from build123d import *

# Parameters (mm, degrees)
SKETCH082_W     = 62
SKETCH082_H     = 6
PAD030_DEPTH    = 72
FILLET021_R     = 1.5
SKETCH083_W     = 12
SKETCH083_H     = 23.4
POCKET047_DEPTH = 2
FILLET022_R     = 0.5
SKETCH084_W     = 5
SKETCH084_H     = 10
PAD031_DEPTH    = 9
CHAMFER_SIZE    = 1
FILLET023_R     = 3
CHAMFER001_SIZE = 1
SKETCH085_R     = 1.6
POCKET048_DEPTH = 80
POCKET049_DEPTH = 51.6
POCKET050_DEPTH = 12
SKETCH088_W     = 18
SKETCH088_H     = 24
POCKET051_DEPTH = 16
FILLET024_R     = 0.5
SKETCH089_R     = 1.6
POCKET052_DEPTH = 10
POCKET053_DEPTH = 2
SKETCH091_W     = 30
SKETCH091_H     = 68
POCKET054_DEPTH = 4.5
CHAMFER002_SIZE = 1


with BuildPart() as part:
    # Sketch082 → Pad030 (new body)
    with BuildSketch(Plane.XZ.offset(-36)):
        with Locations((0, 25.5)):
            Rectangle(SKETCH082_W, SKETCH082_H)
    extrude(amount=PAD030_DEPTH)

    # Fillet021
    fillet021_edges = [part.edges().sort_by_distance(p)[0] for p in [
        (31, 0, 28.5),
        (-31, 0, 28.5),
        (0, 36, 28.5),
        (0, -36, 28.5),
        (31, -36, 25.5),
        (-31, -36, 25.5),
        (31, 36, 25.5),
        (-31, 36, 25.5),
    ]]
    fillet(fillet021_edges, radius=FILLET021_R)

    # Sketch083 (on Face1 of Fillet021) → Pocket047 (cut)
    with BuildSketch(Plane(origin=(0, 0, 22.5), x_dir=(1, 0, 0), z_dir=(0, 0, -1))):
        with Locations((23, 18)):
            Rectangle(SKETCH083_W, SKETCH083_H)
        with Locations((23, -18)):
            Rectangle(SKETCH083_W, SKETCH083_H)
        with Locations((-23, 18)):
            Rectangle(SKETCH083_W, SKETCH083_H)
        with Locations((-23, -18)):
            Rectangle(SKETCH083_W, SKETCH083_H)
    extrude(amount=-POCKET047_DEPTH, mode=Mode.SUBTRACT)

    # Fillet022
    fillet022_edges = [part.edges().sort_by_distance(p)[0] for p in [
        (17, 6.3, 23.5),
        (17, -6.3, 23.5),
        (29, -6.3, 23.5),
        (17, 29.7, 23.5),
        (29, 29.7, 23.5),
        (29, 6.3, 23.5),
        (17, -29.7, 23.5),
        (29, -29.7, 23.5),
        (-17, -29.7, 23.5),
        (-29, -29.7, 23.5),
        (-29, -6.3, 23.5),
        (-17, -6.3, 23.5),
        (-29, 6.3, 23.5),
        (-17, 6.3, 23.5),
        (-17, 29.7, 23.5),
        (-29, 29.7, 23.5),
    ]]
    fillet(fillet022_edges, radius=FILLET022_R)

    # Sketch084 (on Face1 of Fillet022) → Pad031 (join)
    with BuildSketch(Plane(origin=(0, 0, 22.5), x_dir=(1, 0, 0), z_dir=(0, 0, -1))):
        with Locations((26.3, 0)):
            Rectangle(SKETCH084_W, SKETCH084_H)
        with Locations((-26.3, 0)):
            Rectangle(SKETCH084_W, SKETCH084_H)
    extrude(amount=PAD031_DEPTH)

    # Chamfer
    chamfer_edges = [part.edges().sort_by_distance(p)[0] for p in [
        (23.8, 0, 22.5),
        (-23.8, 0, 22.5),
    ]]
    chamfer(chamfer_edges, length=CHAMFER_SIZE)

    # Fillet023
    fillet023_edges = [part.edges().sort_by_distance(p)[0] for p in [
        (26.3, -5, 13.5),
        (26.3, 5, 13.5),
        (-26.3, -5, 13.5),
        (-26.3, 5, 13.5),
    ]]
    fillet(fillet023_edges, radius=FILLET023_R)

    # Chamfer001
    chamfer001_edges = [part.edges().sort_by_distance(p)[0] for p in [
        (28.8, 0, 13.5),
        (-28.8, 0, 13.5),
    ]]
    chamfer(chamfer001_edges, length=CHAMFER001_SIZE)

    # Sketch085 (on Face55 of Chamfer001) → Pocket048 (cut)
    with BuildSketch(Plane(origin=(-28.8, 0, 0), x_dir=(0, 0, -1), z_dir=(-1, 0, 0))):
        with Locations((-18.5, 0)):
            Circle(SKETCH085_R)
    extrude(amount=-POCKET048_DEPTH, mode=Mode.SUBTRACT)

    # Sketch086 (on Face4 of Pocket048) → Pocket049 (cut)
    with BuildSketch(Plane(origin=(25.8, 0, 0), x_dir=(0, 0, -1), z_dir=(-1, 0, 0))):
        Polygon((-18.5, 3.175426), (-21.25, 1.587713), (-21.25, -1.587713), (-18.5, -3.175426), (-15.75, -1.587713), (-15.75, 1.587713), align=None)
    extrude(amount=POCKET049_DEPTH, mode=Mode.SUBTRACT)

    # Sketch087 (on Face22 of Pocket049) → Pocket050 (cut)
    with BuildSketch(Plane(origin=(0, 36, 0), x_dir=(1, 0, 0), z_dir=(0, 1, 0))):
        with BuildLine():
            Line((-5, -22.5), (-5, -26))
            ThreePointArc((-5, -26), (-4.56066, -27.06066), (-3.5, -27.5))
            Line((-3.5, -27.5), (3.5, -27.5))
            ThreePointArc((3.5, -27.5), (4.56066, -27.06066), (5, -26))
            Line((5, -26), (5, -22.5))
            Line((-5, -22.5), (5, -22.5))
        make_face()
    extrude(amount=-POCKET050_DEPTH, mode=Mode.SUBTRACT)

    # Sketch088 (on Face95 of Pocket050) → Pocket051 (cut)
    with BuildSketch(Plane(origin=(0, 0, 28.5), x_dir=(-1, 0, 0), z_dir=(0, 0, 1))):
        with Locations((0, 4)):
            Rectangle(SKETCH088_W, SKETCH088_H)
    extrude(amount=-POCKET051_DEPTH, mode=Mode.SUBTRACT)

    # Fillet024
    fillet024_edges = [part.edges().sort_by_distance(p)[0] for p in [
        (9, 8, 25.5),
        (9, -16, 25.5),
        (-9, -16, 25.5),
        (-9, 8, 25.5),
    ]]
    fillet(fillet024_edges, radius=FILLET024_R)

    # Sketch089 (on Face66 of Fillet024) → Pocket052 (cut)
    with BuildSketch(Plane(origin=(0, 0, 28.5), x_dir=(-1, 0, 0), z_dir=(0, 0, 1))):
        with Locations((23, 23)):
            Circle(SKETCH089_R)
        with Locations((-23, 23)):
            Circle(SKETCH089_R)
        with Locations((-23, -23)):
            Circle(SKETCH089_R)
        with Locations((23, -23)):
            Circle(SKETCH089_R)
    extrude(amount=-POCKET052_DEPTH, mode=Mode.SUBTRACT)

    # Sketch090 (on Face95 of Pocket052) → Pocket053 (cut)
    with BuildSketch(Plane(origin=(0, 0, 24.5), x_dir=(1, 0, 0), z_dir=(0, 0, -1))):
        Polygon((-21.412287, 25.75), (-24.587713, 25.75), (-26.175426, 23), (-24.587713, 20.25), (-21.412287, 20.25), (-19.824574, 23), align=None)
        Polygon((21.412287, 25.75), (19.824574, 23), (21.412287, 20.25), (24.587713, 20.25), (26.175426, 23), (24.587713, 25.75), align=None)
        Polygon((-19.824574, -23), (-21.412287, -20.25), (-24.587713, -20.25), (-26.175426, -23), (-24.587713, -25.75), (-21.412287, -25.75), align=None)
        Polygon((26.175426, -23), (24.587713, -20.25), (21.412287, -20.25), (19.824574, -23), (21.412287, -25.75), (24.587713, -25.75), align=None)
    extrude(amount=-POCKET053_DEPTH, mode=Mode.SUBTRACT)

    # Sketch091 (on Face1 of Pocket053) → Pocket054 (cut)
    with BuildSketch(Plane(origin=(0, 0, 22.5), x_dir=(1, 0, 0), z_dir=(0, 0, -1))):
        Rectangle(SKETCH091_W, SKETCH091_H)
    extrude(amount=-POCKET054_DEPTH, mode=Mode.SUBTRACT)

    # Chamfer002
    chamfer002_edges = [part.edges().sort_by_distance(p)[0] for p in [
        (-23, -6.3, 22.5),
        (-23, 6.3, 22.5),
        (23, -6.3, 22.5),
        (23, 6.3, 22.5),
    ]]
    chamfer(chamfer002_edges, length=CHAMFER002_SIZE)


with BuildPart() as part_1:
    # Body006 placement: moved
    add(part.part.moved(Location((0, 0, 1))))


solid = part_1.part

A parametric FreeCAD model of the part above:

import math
import FreeCAD as App
import Part
import Sketcher
Q = App.Units.Quantity


def edges_at(feature, points):
    """Names of the edges that pass closest to the given points."""
    edges = feature.Shape.Edges
    near = lambda p: min(range(len(edges)), key=lambda i: edges[i].distToShape(Part.Vertex(*p))[0])
    return sorted({f"Edge{near(p) + 1}" for p in points})

doc = App.newDocument("Part")
body = doc.addObject("PartDesign::Body", "Body")

# Sketch on XZ plane
sketch1 = doc.addObject("Sketcher::SketchObject", "Sketch")
body.addObject(sketch1)
sketch1.AttachmentSupport = (doc.XZ_Plane, [""])
sketch1.MapMode = "FlatFace"
sketch1.AttachmentOffset = App.Placement(App.Vector(0, 0, -36), App.Rotation())
sketch1.addGeometry(Part.LineSegment(App.Vector(-31, 28, 0), App.Vector(-31, 22, 0)), False)
sketch1.addGeometry(Part.LineSegment(App.Vector(-31, 22, 0), App.Vector(31, 22, 0)), False)
sketch1.addGeometry(Part.LineSegment(App.Vector(31, 22, 0), App.Vector(31, 28, 0)), False)
sketch1.addGeometry(Part.LineSegment(App.Vector(31, 28, 0), App.Vector(-31, 28, 0)), False)
sketch1.addConstraint(Sketcher.Constraint("Coincident", 0, 2, 1, 1))
sketch1.addConstraint(Sketcher.Constraint("Coincident", 1, 2, 2, 1))
sketch1.addConstraint(Sketcher.Constraint("Coincident", 2, 2, 3, 1))
sketch1.addConstraint(Sketcher.Constraint("Coincident", 3, 2, 0, 1))
sketch1.addConstraint(Sketcher.Constraint("Vertical", 0))
sketch1.addConstraint(Sketcher.Constraint("Horizontal", 1))
sketch1.addConstraint(Sketcher.Constraint("Vertical", 2))
sketch1.addConstraint(Sketcher.Constraint("Horizontal", 3))
sketch1.addConstraint(Sketcher.Constraint("DistanceX", 1, 1, 1, 2, 62.0))
sketch1.addConstraint(Sketcher.Constraint("DistanceY", 0, 2, 0, 1, 6.0))
sketch1.addConstraint(Sketcher.Constraint("DistanceX", 0, 2, -1, 1, 31.0))
sketch1.addConstraint(Sketcher.Constraint("DistanceY", -1, 1, 0, 2, 22.5))
pad1 = doc.addObject("PartDesign::Pad", "Pad")
body.addObject(pad1)
pad1.Profile = sketch1
pad1.Length = 72
doc.recompute()

fillet = doc.addObject("PartDesign::Fillet", "Fillet")
body.addObject(fillet)
fillet.Base = (pad1, edges_at(pad1, [
    (31, 0, 28.5),
    (-31, 0, 28.5),
    (0, 36, 28.5),
    (0, -36, 28.5),
    (31, -36, 25.5),
    (-31, -36, 25.5),
    (31, 36, 25.5),
    (-31, 36, 25.5),
]))
fillet.Radius = 1.5

# Sketch on XY plane
sketch2 = doc.addObject("Sketcher::SketchObject", "Sketch001")
body.addObject(sketch2)
sketch2.AttachmentSupport = (doc.XY_Plane, [""])
sketch2.MapMode = "FlatFace"
sketch2.AttachmentOffset = App.Placement(App.Vector(0, 0, 22.5), App.Rotation())
sketch2.addGeometry(Part.LineSegment(App.Vector(17, -30, 0), App.Vector(17, -6, 0)), False)
sketch2.addGeometry(Part.LineSegment(App.Vector(17, -6, 0), App.Vector(29, -6, 0)), False)
sketch2.addGeometry(Part.LineSegment(App.Vector(29, -6, 0), App.Vector(29, -30, 0)), False)
sketch2.addGeometry(Part.LineSegment(App.Vector(29, -30, 0), App.Vector(17, -30, 0)), False)
sketch2.addGeometry(Part.LineSegment(App.Vector(17, 6, 0), App.Vector(17, 30, 0)), False)
sketch2.addGeometry(Part.LineSegment(App.Vector(17, 30, 0), App.Vector(29, 30, 0)), False)
sketch2.addGeometry(Part.LineSegment(App.Vector(29, 30, 0), App.Vector(29, 6, 0)), False)
sketch2.addGeometry(Part.LineSegment(App.Vector(29, 6, 0), App.Vector(17, 6, 0)), False)
sketch2.addGeometry(Part.LineSegment(App.Vector(-29, -30, 0), App.Vector(-29, -6, 0)), False)
sketch2.addGeometry(Part.LineSegment(App.Vector(-29, -6, 0), App.Vector(-17, -6, 0)), False)
sketch2.addGeometry(Part.LineSegment(App.Vector(-17, -6, 0), App.Vector(-17, -30, 0)), False)
sketch2.addGeometry(Part.LineSegment(App.Vector(-17, -30, 0), App.Vector(-29, -30, 0)), False)
sketch2.addGeometry(Part.LineSegment(App.Vector(-29, 6, 0), App.Vector(-29, 30, 0)), False)
sketch2.addGeometry(Part.LineSegment(App.Vector(-29, 30, 0), App.Vector(-17, 30, 0)), False)
sketch2.addGeometry(Part.LineSegment(App.Vector(-17, 30, 0), App.Vector(-17, 6, 0)), False)
sketch2.addGeometry(Part.LineSegment(App.Vector(-17, 6, 0), App.Vector(-29, 6, 0)), False)
sketch2.addConstraint(Sketcher.Constraint("Coincident", 0, 2, 1, 1))
sketch2.addConstraint(Sketcher.Constraint("Coincident", 1, 2, 2, 1))
sketch2.addConstraint(Sketcher.Constraint("Coincident", 2, 2, 3, 1))
sketch2.addConstraint(Sketcher.Constraint("Coincident", 3, 2, 0, 1))
sketch2.addConstraint(Sketcher.Constraint("Coincident", 4, 2, 5, 1))
sketch2.addConstraint(Sketcher.Constraint("Coincident", 5, 2, 6, 1))
sketch2.addConstraint(Sketcher.Constraint("Coincident", 6, 2, 7, 1))
sketch2.addConstraint(Sketcher.Constraint("Coincident", 7, 2, 4, 1))
sketch2.addConstraint(Sketcher.Constraint("Coincident", 8, 2, 9, 1))
sketch2.addConstraint(Sketcher.Constraint("Coincident", 9, 2, 10, 1))
sketch2.addConstraint(Sketcher.Constraint("Coincident", 10, 2, 11, 1))
sketch2.addConstraint(Sketcher.Constraint("Coincident", 11, 2, 8, 1))
sketch2.addConstraint(Sketcher.Constraint("Coincident", 12, 2, 13, 1))
sketch2.addConstraint(Sketcher.Constraint("Coincident", 13, 2, 14, 1))
sketch2.addConstraint(Sketcher.Constraint("Coincident", 14, 2, 15, 1))
sketch2.addConstraint(Sketcher.Constraint("Coincident", 15, 2, 12, 1))
sketch2.addConstraint(Sketcher.Constraint("Vertical", 0))
sketch2.addConstraint(Sketcher.Constraint("Horizontal", 1))
sketch2.addConstraint(Sketcher.Constraint("Vertical", 2))
sketch2.addConstraint(Sketcher.Constraint("Horizontal", 3))
sketch2.addConstraint(Sketcher.Constraint("Vertical", 4))
sketch2.addConstraint(Sketcher.Constraint("Horizontal", 5))
sketch2.addConstraint(Sketcher.Constraint("Vertical", 6))
sketch2.addConstraint(Sketcher.Constraint("Horizontal", 7))
sketch2.addConstraint(Sketcher.Constraint("Vertical", 8))
sketch2.addConstraint(Sketcher.Constraint("Horizontal", 9))
sketch2.addConstraint(Sketcher.Constraint("Vertical", 10))
sketch2.addConstraint(Sketcher.Constraint("Horizontal", 11))
sketch2.addConstraint(Sketcher.Constraint("Vertical", 12))
sketch2.addConstraint(Sketcher.Constraint("Horizontal", 13))
sketch2.addConstraint(Sketcher.Constraint("Vertical", 14))
sketch2.addConstraint(Sketcher.Constraint("Horizontal", 15))
sketch2.addConstraint(Sketcher.Constraint("Symmetric", 6, 2, 8, 2, -1, 1))
sketch2.addConstraint(Sketcher.Constraint("Symmetric", 4, 2, 10, 2, -1, 1))
sketch2.addConstraint(Sketcher.Constraint("Symmetric", 2, 2, 12, 2, -1, 1))
sketch2.addConstraint(Sketcher.Constraint("Symmetric", 0, 2, 14, 2, -1, 1))
sketch2.addConstraint(Sketcher.Constraint("Symmetric", 1, 2, 8, 2, -2))
sketch2.addConstraint(Sketcher.Constraint("Symmetric", 3, 2, 10, 2, -2))
sketch2.addConstraint(Sketcher.Constraint("DistanceX", 1, 1, 1, 2, 12.0))
sketch2.addConstraint(Sketcher.Constraint("DistanceY", 0, 1, 0, 2, 23.4))
sketch2.addConstraint(Sketcher.Constraint("DistanceX", -1, 1, 0, 2, 17.0))
sketch2.addConstraint(Sketcher.Constraint("DistanceY", 0, 2, 4, 2, 36.0))
pocket1 = doc.addObject("PartDesign::Pocket", "Pocket")
body.addObject(pocket1)
pocket1.Profile = sketch2
pocket1.Length = 2
pocket1.Reversed = True
doc.recompute()

fillet2 = doc.addObject("PartDesign::Fillet", "Fillet001")
body.addObject(fillet2)
fillet2.Base = (pocket1, edges_at(pocket1, [
    (17, 6.3, 23.5),
    (17, -6.3, 23.5),
    (29, -6.3, 23.5),
    (17, 29.7, 23.5),
    (29, 29.7, 23.5),
    (29, 6.3, 23.5),
    (17, -29.7, 23.5),
    (29, -29.7, 23.5),
    (-17, -29.7, 23.5),
    (-29, -29.7, 23.5),
    (-29, -6.3, 23.5),
    (-17, -6.3, 23.5),
    (-29, 6.3, 23.5),
    (-17, 6.3, 23.5),
    (-17, 29.7, 23.5),
    (-29, 29.7, 23.5),
]))
fillet2.Radius = 0.5

# Sketch on XY plane
sketch3 = doc.addObject("Sketcher::SketchObject", "Sketch002")
body.addObject(sketch3)
sketch3.AttachmentSupport = (doc.XY_Plane, [""])
sketch3.MapMode = "FlatFace"
sketch3.AttachmentOffset = App.Placement(App.Vector(0, 0, 22.5), App.Rotation())
sketch3.addGeometry(Part.LineSegment(App.Vector(24, -5, 0), App.Vector(24, 5, 0)), False)
sketch3.addGeometry(Part.LineSegment(App.Vector(24, 5, 0), App.Vector(29, 5, 0)), False)
sketch3.addGeometry(Part.LineSegment(App.Vector(29, 5, 0), App.Vector(29, -5, 0)), False)
sketch3.addGeometry(Part.LineSegment(App.Vector(29, -5, 0), App.Vector(24, -5, 0)), False)
sketch3.addGeometry(Part.LineSegment(App.Vector(-29, -5, 0), App.Vector(-29, 5, 0)), False)
sketch3.addGeometry(Part.LineSegment(App.Vector(-29, 5, 0), App.Vector(-24, 5, 0)), False)
sketch3.addGeometry(Part.LineSegment(App.Vector(-24, 5, 0), App.Vector(-24, -5, 0)), False)
sketch3.addGeometry(Part.LineSegment(App.Vector(-24, -5, 0), App.Vector(-29, -5, 0)), False)
sketch3.addConstraint(Sketcher.Constraint("Coincident", 0, 2, 1, 1))
sketch3.addConstraint(Sketcher.Constraint("Coincident", 1, 2, 2, 1))
sketch3.addConstraint(Sketcher.Constraint("Coincident", 2, 2, 3, 1))
sketch3.addConstraint(Sketcher.Constraint("Coincident", 3, 2, 0, 1))
sketch3.addConstraint(Sketcher.Constraint("Coincident", 4, 2, 5, 1))
sketch3.addConstraint(Sketcher.Constraint("Coincident", 5, 2, 6, 1))
sketch3.addConstraint(Sketcher.Constraint("Coincident", 6, 2, 7, 1))
sketch3.addConstraint(Sketcher.Constraint("Coincident", 7, 2, 4, 1))
sketch3.addConstraint(Sketcher.Constraint("Vertical", 0))
sketch3.addConstraint(Sketcher.Constraint("Horizontal", 1))
sketch3.addConstraint(Sketcher.Constraint("Vertical", 2))
sketch3.addConstraint(Sketcher.Constraint("Horizontal", 3))
sketch3.addConstraint(Sketcher.Constraint("Vertical", 4))
sketch3.addConstraint(Sketcher.Constraint("Horizontal", 5))
sketch3.addConstraint(Sketcher.Constraint("Vertical", 6))
sketch3.addConstraint(Sketcher.Constraint("Horizontal", 7))
sketch3.addConstraint(Sketcher.Constraint("Symmetric", 2, 2, 4, 2, -1, 1))
sketch3.addConstraint(Sketcher.Constraint("Symmetric", 0, 2, 6, 2, -1, 1))
sketch3.addConstraint(Sketcher.Constraint("Horizontal", 1, 2, 4, 2))
sketch3.addConstraint(Sketcher.Constraint("DistanceX", 1, 1, 1, 2, 5.0))
sketch3.addConstraint(Sketcher.Constraint("DistanceY", 0, 1, 0, 2, 10.0))
sketch3.addConstraint(Sketcher.Constraint("DistanceX", -1, 1, 0, 2, 23.8))
pad2 = doc.addObject("PartDesign::Pad", "Pad001")
body.addObject(pad2)
pad2.Profile = sketch3
pad2.Length = 9
pad2.Reversed = True
doc.recompute()

chamfer = doc.addObject("PartDesign::Chamfer", "Chamfer")
body.addObject(chamfer)
chamfer.Base = (pad2, edges_at(pad2, [(23.8, 0, 22.5), (-23.8, 0, 22.5)]))
chamfer.Size = 1
doc.recompute()

fillet3 = doc.addObject("PartDesign::Fillet", "Fillet002")
body.addObject(fillet3)
fillet3.Base = (chamfer, edges_at(chamfer, [
    (26.3, -5, 13.5),
    (26.3, 5, 13.5),
    (-26.3, -5, 13.5),
    (-26.3, 5, 13.5),
]))
fillet3.Radius = 3
doc.recompute()

chamfer2 = doc.addObject("PartDesign::Chamfer", "Chamfer001")
body.addObject(chamfer2)
chamfer2.Base = (fillet3, edges_at(fillet3, [(28.8, 0, 13.5), (-28.8, 0, 13.5)]))
chamfer2.Size = 1

# Sketch on YZ plane
sketch4 = doc.addObject("Sketcher::SketchObject", "Sketch003")
body.addObject(sketch4)
sketch4.AttachmentSupport = (doc.YZ_Plane, [""])
sketch4.MapMode = "FlatFace"
sketch4.AttachmentOffset = App.Placement(App.Vector(0, 0, -28.8), App.Rotation())
sketch4.addGeometry(Part.Circle(App.Vector(0, 18.5, 0), App.Vector(0, 0, 1), 1.6), False)
sketch4.addConstraint(Sketcher.Constraint("PointOnObject", 0, 3, -2))
sketch4.addConstraint(Sketcher.Constraint("Diameter", 0, 3.2))
sketch4.addConstraint(Sketcher.Constraint("DistanceY", -1, 1, 0, 3, 18.5))
pocket2 = doc.addObject("PartDesign::Pocket", "Pocket001")
body.addObject(pocket2)
pocket2.Profile = sketch4
pocket2.Length = 80
pocket2.Reversed = True

# Sketch on YZ plane
sketch5 = doc.addObject("Sketcher::SketchObject", "Sketch004")
body.addObject(sketch5)
sketch5.AttachmentSupport = (doc.YZ_Plane, [""])
sketch5.MapMode = "FlatFace"
sketch5.AttachmentOffset = App.Placement(App.Vector(0, 0, 25.8), App.Rotation())
sketch5.addGeometry(Part.LineSegment(App.Vector(-3.2, 18.5, 0), App.Vector(-1.6, 21.2, 0)), False)
sketch5.addGeometry(Part.LineSegment(App.Vector(-1.6, 21.2, 0), App.Vector(1.6, 21.2, 0)), False)
sketch5.addGeometry(Part.LineSegment(App.Vector(1.6, 21.2, 0), App.Vector(3.2, 18.5, 0)), False)
sketch5.addGeometry(Part.LineSegment(App.Vector(3.2, 18.5, 0), App.Vector(1.6, 15.8, 0)), False)
sketch5.addGeometry(Part.LineSegment(App.Vector(1.6, 15.8, 0), App.Vector(-1.6, 15.8, 0)), False)
sketch5.addGeometry(Part.LineSegment(App.Vector(-1.6, 15.8, 0), App.Vector(-3.2, 18.5, 0)), False)
sketch5.addConstraint(Sketcher.Constraint("Coincident", 0, 2, 1, 1))
sketch5.addConstraint(Sketcher.Constraint("Coincident", 1, 2, 2, 1))
sketch5.addConstraint(Sketcher.Constraint("Coincident", 2, 2, 3, 1))
sketch5.addConstraint(Sketcher.Constraint("Coincident", 3, 2, 4, 1))
sketch5.addConstraint(Sketcher.Constraint("Coincident", 4, 2, 5, 1))
sketch5.addConstraint(Sketcher.Constraint("Coincident", 5, 2, 0, 1))
sketch5.addConstraint(Sketcher.Constraint("Horizontal", 1))
sketch5.addConstraint(Sketcher.Constraint("Horizontal", 4))
sketch5.addConstraint(Sketcher.Constraint("Symmetric", 2, 2, 5, 2, -2))
sketch5.addConstraint(Sketcher.Constraint("Parallel", 0, 3))
sketch5.addConstraint(Sketcher.Constraint("Parallel", 2, 5))
sketch5.addConstraint(Sketcher.Constraint("Vertical", 1, 2, 3, 2))
sketch5.addConstraint(Sketcher.Constraint("Vertical", 0, 2, 4, 2))
sketch5.addConstraint(Sketcher.Constraint("Angle", 0, Q("60.000004 deg")))
sketch5.addConstraint(Sketcher.Constraint("DistanceY", -1, 1, 2, 2, 18.5))
sketch5.addConstraint(Sketcher.Constraint("DistanceY", 3, 2, 1, 2, 5.5))
sketch5.addConstraint(Sketcher.Constraint("DistanceX", 1, 1, 1, 2, 3.175426))
pocket3 = doc.addObject("PartDesign::Pocket", "Pocket002")
body.addObject(pocket3)
pocket3.Profile = sketch5
pocket3.Length = 51.6

# Sketch on XZ plane
sketch6 = doc.addObject("Sketcher::SketchObject", "Sketch005")
body.addObject(sketch6)
sketch6.AttachmentSupport = (doc.XZ_Plane, [""])
sketch6.MapMode = "FlatFace"
sketch6.AttachmentOffset = App.Placement(App.Vector(0, 0, -36), App.Rotation())
sketch6.addGeometry(Part.LineSegment(App.Vector(-5, 22.5, 0), App.Vector(-5, 26, 0)), False)
sketch6.addGeometry(Part.ArcOfCircle(Part.Circle(App.Vector(-3.5, 26, 0), App.Vector(0, 0, 1), 1.5), math.radians(90), math.radians(180)), False)
sketch6.addGeometry(Part.LineSegment(App.Vector(-3.5, 27.5, 0), App.Vector(3.5, 27.5, 0)), False)
sketch6.addGeometry(Part.ArcOfCircle(Part.Circle(App.Vector(3.5, 26, 0), App.Vector(0, 0, 1), 1.5), math.radians(0), math.radians(90)), False)
sketch6.addGeometry(Part.LineSegment(App.Vector(5, 26, 0), App.Vector(5, 22.5, 0)), False)
sketch6.addGeometry(Part.LineSegment(App.Vector(5, 22.5, 0), App.Vector(-5, 22.5, 0)), False)
sketch6.addConstraint(Sketcher.Constraint("Tangent", 0, 2, 1, 2))
sketch6.addConstraint(Sketcher.Constraint("Tangent", 1, 1, 2, 1))
sketch6.addConstraint(Sketcher.Constraint("Tangent", 2, 2, 3, 2))
sketch6.addConstraint(Sketcher.Constraint("Tangent", 3, 1, 4, 1))
sketch6.addConstraint(Sketcher.Constraint("Coincident", 4, 2, 5, 1))
sketch6.addConstraint(Sketcher.Constraint("Coincident", 5, 2, 0, 1))
sketch6.addConstraint(Sketcher.Constraint("Vertical", 0))
sketch6.addConstraint(Sketcher.Constraint("Horizontal", 2))
sketch6.addConstraint(Sketcher.Constraint("Vertical", 4))
sketch6.addConstraint(Sketcher.Constraint("Horizontal", 5))
sketch6.addConstraint(Sketcher.Constraint("Equal", 1, 3))
sketch6.addConstraint(Sketcher.Constraint("Radius", 1, 1.500001))
sketch6.addConstraint(Sketcher.Constraint("DistanceX", 2, 1, 2, 2, 7.0))
sketch6.addConstraint(Sketcher.Constraint("DistanceY", 0, 1, 0, 2, 3.5))
sketch6.addConstraint(Sketcher.Constraint("DistanceY", -1, 1, 1, 3, 25.999999))
sketch6.addConstraint(Sketcher.Constraint("DistanceX", 0, 2, -1, 1, 5.0))
pocket4 = doc.addObject("PartDesign::Pocket", "Pocket003")
body.addObject(pocket4)
pocket4.Profile = sketch6
pocket4.Length = 12
pocket4.Reversed = True

# Sketch on XY plane
sketch7 = doc.addObject("Sketcher::SketchObject", "Sketch006")
body.addObject(sketch7)
sketch7.AttachmentSupport = (doc.XY_Plane, [""])
sketch7.MapMode = "FlatFace"
sketch7.AttachmentOffset = App.Placement(App.Vector(0, 0, 28.5), App.Rotation())
sketch7.addGeometry(Part.LineSegment(App.Vector(9, -16, 0), App.Vector(9, 8, 0)), False)
sketch7.addGeometry(Part.LineSegment(App.Vector(9, 8, 0), App.Vector(-9, 8, 0)), False)
sketch7.addGeometry(Part.LineSegment(App.Vector(-9, 8, 0), App.Vector(-9, -16, 0)), False)
sketch7.addGeometry(Part.LineSegment(App.Vector(-9, -16, 0), App.Vector(9, -16, 0)), False)
sketch7.addConstraint(Sketcher.Constraint("Coincident", 0, 2, 1, 1))
sketch7.addConstraint(Sketcher.Constraint("Coincident", 1, 2, 2, 1))
sketch7.addConstraint(Sketcher.Constraint("Coincident", 2, 2, 3, 1))
sketch7.addConstraint(Sketcher.Constraint("Coincident", 3, 2, 0, 1))
sketch7.addConstraint(Sketcher.Constraint("Vertical", 0))
sketch7.addConstraint(Sketcher.Constraint("Horizontal", 1))
sketch7.addConstraint(Sketcher.Constraint("Vertical", 2))
sketch7.addConstraint(Sketcher.Constraint("Horizontal", 3))
sketch7.addConstraint(Sketcher.Constraint("DistanceX", 1, 2, 1, 1, 18.0))
sketch7.addConstraint(Sketcher.Constraint("DistanceY", 0, 1, 0, 2, 24.0))
sketch7.addConstraint(Sketcher.Constraint("DistanceX", -1, 1, 0, 2, 9.0))
sketch7.addConstraint(Sketcher.Constraint("DistanceY", -1, 1, 0, 2, 8.0))
pocket5 = doc.addObject("PartDesign::Pocket", "Pocket004")
body.addObject(pocket5)
pocket5.Profile = sketch7
pocket5.Length = 16
doc.recompute()

fillet4 = doc.addObject("PartDesign::Fillet", "Fillet003")
body.addObject(fillet4)
fillet4.Base = (pocket5, edges_at(pocket5, [
    (9, 8, 25.5),
    (9, -16, 25.5),
    (-9, -16, 25.5),
    (-9, 8, 25.5),
]))
fillet4.Radius = 0.5

# Sketch on XY plane
sketch8 = doc.addObject("Sketcher::SketchObject", "Sketch007")
body.addObject(sketch8)
sketch8.AttachmentSupport = (doc.XY_Plane, [""])
sketch8.MapMode = "FlatFace"
sketch8.AttachmentOffset = App.Placement(App.Vector(0, 0, 28.5), App.Rotation())
sketch8.addGeometry(Part.Circle(App.Vector(-23, -23, 0), App.Vector(0, 0, 1), 1.6), False)
sketch8.addGeometry(Part.Circle(App.Vector(23, -23, 0), App.Vector(0, 0, 1), 1.6), False)
sketch8.addGeometry(Part.Circle(App.Vector(23, 23, 0), App.Vector(0, 0, 1), 1.6), False)
sketch8.addGeometry(Part.Circle(App.Vector(-23, 23, 0), App.Vector(0, 0, 1), 1.6), False)
sketch8.addConstraint(Sketcher.Constraint("Equal", 0, 1))
sketch8.addConstraint(Sketcher.Constraint("Equal", 1, 2))
sketch8.addConstraint(Sketcher.Constraint("Equal", 2, 3))
sketch8.addConstraint(Sketcher.Constraint("Symmetric", 0, 3, 2, 3, -1, 1))
sketch8.addConstraint(Sketcher.Constraint("Symmetric", 1, 3, 3, 3, -1, 1))
sketch8.addConstraint(Sketcher.Constraint("Symmetric", 0, 3, 1, 3, -2))
sketch8.addConstraint(Sketcher.Constraint("Diameter", 0, 3.2))
sketch8.addConstraint(Sketcher.Constraint("DistanceX", 0, 3, -1, 1, 23.0))
sketch8.addConstraint(Sketcher.Constraint("DistanceY", 0, 3, -1, 1, 23.0))
pocket6 = doc.addObject("PartDesign::Pocket", "Pocket005")
body.addObject(pocket6)
pocket6.Profile = sketch8
pocket6.Length = 10

# Sketch on XY plane
sketch9 = doc.addObject("Sketcher::SketchObject", "Sketch008")
body.addObject(sketch9)
sketch9.AttachmentSupport = (doc.XY_Plane, [""])
sketch9.MapMode = "FlatFace"
sketch9.AttachmentOffset = App.Placement(App.Vector(0, 0, 24.5), App.Rotation())
sketch9.addGeometry(Part.LineSegment(App.Vector(-21.4, -25.8, 0), App.Vector(-24.6, -25.8, 0)), False)
sketch9.addGeometry(Part.LineSegment(App.Vector(-24.6, -25.8, 0), App.Vector(-26.2, -23, 0)), False)
sketch9.addGeometry(Part.LineSegment(App.Vector(-26.2, -23, 0), App.Vector(-24.6, -20.2, 0)), False)
sketch9.addGeometry(Part.LineSegment(App.Vector(-24.6, -20.2, 0), App.Vector(-21.4, -20.2, 0)), False)
sketch9.addGeometry(Part.LineSegment(App.Vector(-21.4, -20.2, 0), App.Vector(-19.8, -23, 0)), False)
sketch9.addGeometry(Part.LineSegment(App.Vector(-19.8, -23, 0), App.Vector(-21.4, -25.8, 0)), False)
sketch9.addGeometry(Part.LineSegment(App.Vector(21.4, -25.8, 0), App.Vector(19.8, -23, 0)), False)
sketch9.addGeometry(Part.LineSegment(App.Vector(19.8, -23, 0), App.Vector(21.4, -20.2, 0)), False)
sketch9.addGeometry(Part.LineSegment(App.Vector(21.4, -20.2, 0), App.Vector(24.6, -20.2, 0)), False)
sketch9.addGeometry(Part.LineSegment(App.Vector(24.6, -20.2, 0), App.Vector(26.2, -23, 0)), False)
sketch9.addGeometry(Part.LineSegment(App.Vector(26.2, -23, 0), App.Vector(24.6, -25.8, 0)), False)
sketch9.addGeometry(Part.LineSegment(App.Vector(24.6, -25.8, 0), App.Vector(21.4, -25.8, 0)), False)
sketch9.addGeometry(Part.LineSegment(App.Vector(-19.8, 23, 0), App.Vector(-21.4, 20.2, 0)), False)
sketch9.addGeometry(Part.LineSegment(App.Vector(-21.4, 20.2, 0), App.Vector(-24.6, 20.2, 0)), False)
sketch9.addGeometry(Part.LineSegment(App.Vector(-24.6, 20.2, 0), App.Vector(-26.2, 23, 0)), False)
sketch9.addGeometry(Part.LineSegment(App.Vector(-26.2, 23, 0), App.Vector(-24.6, 25.8, 0)), False)
sketch9.addGeometry(Part.LineSegment(App.Vector(-24.6, 25.8, 0), App.Vector(-21.4, 25.8, 0)), False)
sketch9.addGeometry(Part.LineSegment(App.Vector(-21.4, 25.8, 0), App.Vector(-19.8, 23, 0)), False)
sketch9.addGeometry(Part.LineSegment(App.Vector(26.2, 23, 0), App.Vector(24.6, 20.2, 0)), False)
sketch9.addGeometry(Part.LineSegment(App.Vector(24.6, 20.2, 0), App.Vector(21.4, 20.2, 0)), False)
sketch9.addGeometry(Part.LineSegment(App.Vector(21.4, 20.2, 0), App.Vector(19.8, 23, 0)), False)
sketch9.addGeometry(Part.LineSegment(App.Vector(19.8, 23, 0), App.Vector(21.4, 25.8, 0)), False)
sketch9.addGeometry(Part.LineSegment(App.Vector(21.4, 25.8, 0), App.Vector(24.6, 25.8, 0)), False)
sketch9.addGeometry(Part.LineSegment(App.Vector(24.6, 25.8, 0), App.Vector(26.2, 23, 0)), False)
sketch9.addConstraint(Sketcher.Constraint("Coincident", 0, 2, 1, 1))
sketch9.addConstraint(Sketcher.Constraint("Coincident", 1, 2, 2, 1))
sketch9.addConstraint(Sketcher.Constraint("Coincident", 2, 2, 3, 1))
sketch9.addConstraint(Sketcher.Constraint("Coincident", 3, 2, 4, 1))
sketch9.addConstraint(Sketcher.Constraint("Coincident", 4, 2, 5, 1))
sketch9.addConstraint(Sketcher.Constraint("Coincident", 5, 2, 0, 1))
sketch9.addConstraint(Sketcher.Constraint("Coincident", 6, 2, 7, 1))
sketch9.addConstraint(Sketcher.Constraint("Coincident", 7, 2, 8, 1))
sketch9.addConstraint(Sketcher.Constraint("Coincident", 8, 2, 9, 1))
sketch9.addConstraint(Sketcher.Constraint("Coincident", 9, 2, 10, 1))
sketch9.addConstraint(Sketcher.Constraint("Coincident", 10, 2, 11, 1))
sketch9.addConstraint(Sketcher.Constraint("Coincident", 11, 2, 6, 1))
sketch9.addConstraint(Sketcher.Constraint("Coincident", 12, 2, 13, 1))
sketch9.addConstraint(Sketcher.Constraint("Coincident", 13, 2, 14, 1))
sketch9.addConstraint(Sketcher.Constraint("Coincident", 14, 2, 15, 1))
sketch9.addConstraint(Sketcher.Constraint("Coincident", 15, 2, 16, 1))
sketch9.addConstraint(Sketcher.Constraint("Coincident", 16, 2, 17, 1))
sketch9.addConstraint(Sketcher.Constraint("Coincident", 17, 2, 12, 1))
sketch9.addConstraint(Sketcher.Constraint("Coincident", 18, 2, 19, 1))
sketch9.addConstraint(Sketcher.Constraint("Coincident", 19, 2, 20, 1))
sketch9.addConstraint(Sketcher.Constraint("Coincident", 20, 2, 21, 1))
sketch9.addConstraint(Sketcher.Constraint("Coincident", 21, 2, 22, 1))
sketch9.addConstraint(Sketcher.Constraint("Coincident", 22, 2, 23, 1))
sketch9.addConstraint(Sketcher.Constraint("Coincident", 23, 2, 18, 1))
sketch9.addConstraint(Sketcher.Constraint("Horizontal", 0))
sketch9.addConstraint(Sketcher.Constraint("Horizontal", 3))
sketch9.addConstraint(Sketcher.Constraint("Horizontal", 8))
sketch9.addConstraint(Sketcher.Constraint("Horizontal", 11))
sketch9.addConstraint(Sketcher.Constraint("Horizontal", 13))
sketch9.addConstraint(Sketcher.Constraint("Horizontal", 16))
sketch9.addConstraint(Sketcher.Constraint("Horizontal", 19))
sketch9.addConstraint(Sketcher.Constraint("Horizontal", 22))
sketch9.addConstraint(Sketcher.Constraint("Symmetric", 7, 2, 12, 2, -1, 1))
sketch9.addConstraint(Sketcher.Constraint("Symmetric", 9, 2, 14, 2, -1, 1))
sketch9.addConstraint(Sketcher.Constraint("Symmetric", 10, 2, 15, 2, -1, 1))
sketch9.addConstraint(Sketcher.Constraint("Symmetric", 6, 2, 17, 2, -1, 1))
sketch9.addConstraint(Sketcher.Constraint("Symmetric", 2, 2, 18, 2, -1, 1))
sketch9.addConstraint(Sketcher.Constraint("Symmetric", 4, 2, 20, 2, -1, 1))
sketch9.addConstraint(Sketcher.Constraint("Symmetric", 5, 2, 21, 2, -1, 1))
sketch9.addConstraint(Sketcher.Constraint("Symmetric", 1, 2, 23, 2, -1, 1))
sketch9.addConstraint(Sketcher.Constraint("Symmetric", 4, 2, 6, 2, -2))
sketch9.addConstraint(Sketcher.Constraint("Symmetric", 3, 2, 7, 2, -2))
sketch9.addConstraint(Sketcher.Constraint("Symmetric", 1, 2, 9, 2, -2))
sketch9.addConstraint(Sketcher.Constraint("Symmetric", 0, 2, 10, 2, -2))
sketch9.addConstraint(Sketcher.Constraint("Parallel", 1, 4))
sketch9.addConstraint(Sketcher.Constraint("Parallel", 2, 5))
sketch9.addConstraint(Sketcher.Constraint("Parallel", 4, 6))
sketch9.addConstraint(Sketcher.Constraint("Parallel", 5, 7))
sketch9.addConstraint(Sketcher.Constraint("Parallel", 6, 9))
sketch9.addConstraint(Sketcher.Constraint("Parallel", 9, 14))
sketch9.addConstraint(Sketcher.Constraint("Parallel", 14, 17))
sketch9.addConstraint(Sketcher.Constraint("Parallel", 17, 20))
sketch9.addConstraint(Sketcher.Constraint("Parallel", 20, 23))
sketch9.addConstraint(Sketcher.Constraint("Horizontal", 1, 2, 4, 2))
sketch9.addConstraint(Sketcher.Constraint("Vertical", 0, 2, 2, 2))
sketch9.addConstraint(Sketcher.Constraint("Angle", 1, Q("119.999996 deg")))
sketch9.addConstraint(Sketcher.Constraint("DistanceY", 1, 2, -1, 1, 23.0))
sketch9.addConstraint(Sketcher.Constraint("DistanceX", 2, 2, 7, 2, 46.0))
sketch9.addConstraint(Sketcher.Constraint("DistanceY", 0, 2, 2, 2, 5.5))
sketch9.addConstraint(Sketcher.Constraint("DistanceX", 0, 2, 0, 1, 3.175426))
pocket7 = doc.addObject("PartDesign::Pocket", "Pocket006")
body.addObject(pocket7)
pocket7.Profile = sketch9
pocket7.Length = 2
pocket7.Reversed = True

# Sketch on XY plane
sketch10 = doc.addObject("Sketcher::SketchObject", "Sketch009")
body.addObject(sketch10)
sketch10.AttachmentSupport = (doc.XY_Plane, [""])
sketch10.MapMode = "FlatFace"
sketch10.AttachmentOffset = App.Placement(App.Vector(0, 0, 22.5), App.Rotation())
sketch10.addGeometry(Part.LineSegment(App.Vector(-15, -34, 0), App.Vector(-15, 34, 0)), False)
sketch10.addGeometry(Part.LineSegment(App.Vector(-15, 34, 0), App.Vector(15, 34, 0)), False)
sketch10.addGeometry(Part.LineSegment(App.Vector(15, 34, 0), App.Vector(15, -34, 0)), False)
sketch10.addGeometry(Part.LineSegment(App.Vector(15, -34, 0), App.Vector(-15, -34, 0)), False)
sketch10.addConstraint(Sketcher.Constraint("Coincident", 0, 2, 1, 1))
sketch10.addConstraint(Sketcher.Constraint("Coincident", 1, 2, 2, 1))
sketch10.addConstraint(Sketcher.Constraint("Coincident", 2, 2, 3, 1))
sketch10.addConstraint(Sketcher.Constraint("Coincident", 3, 2, 0, 1))
sketch10.addConstraint(Sketcher.Constraint("Vertical", 0))
sketch10.addConstraint(Sketcher.Constraint("Horizontal", 1))
sketch10.addConstraint(Sketcher.Constraint("Vertical", 2))
sketch10.addConstraint(Sketcher.Constraint("Horizontal", 3))
sketch10.addConstraint(Sketcher.Constraint("Symmetric", 0, 2, 2, 2, -1, 1))
sketch10.addConstraint(Sketcher.Constraint("DistanceX", 1, 1, 1, 2, 30.0))
sketch10.addConstraint(Sketcher.Constraint("DistanceY", 0, 1, 0, 2, 68.0))
pocket8 = doc.addObject("PartDesign::Pocket", "Pocket007")
body.addObject(pocket8)
pocket8.Profile = sketch10
pocket8.Length = 4.5
pocket8.Reversed = True
doc.recompute()

chamfer3 = doc.addObject("PartDesign::Chamfer", "Chamfer002")
body.addObject(chamfer3)
chamfer3.Base = (pocket8, edges_at(pocket8, [
    (-23, -6.3, 22.5),
    (-23, 6.3, 22.5),
    (23, -6.3, 22.5),
    (23, 6.3, 22.5),
]))
chamfer3.Size = 1
body2 = doc.addObject("PartDesign::Body", "Body001")
doc.recompute()

body.Placement = App.Placement(App.Vector(0, 0, 1), App.Rotation(App.Vector(0, 0, 1), 0))
boolean = doc.addObject("PartDesign::Boolean", "Boolean")
body2.addObject(boolean)
boolean.Type = "Fuse"
boolean.addObjects([body])

doc.recompute()
